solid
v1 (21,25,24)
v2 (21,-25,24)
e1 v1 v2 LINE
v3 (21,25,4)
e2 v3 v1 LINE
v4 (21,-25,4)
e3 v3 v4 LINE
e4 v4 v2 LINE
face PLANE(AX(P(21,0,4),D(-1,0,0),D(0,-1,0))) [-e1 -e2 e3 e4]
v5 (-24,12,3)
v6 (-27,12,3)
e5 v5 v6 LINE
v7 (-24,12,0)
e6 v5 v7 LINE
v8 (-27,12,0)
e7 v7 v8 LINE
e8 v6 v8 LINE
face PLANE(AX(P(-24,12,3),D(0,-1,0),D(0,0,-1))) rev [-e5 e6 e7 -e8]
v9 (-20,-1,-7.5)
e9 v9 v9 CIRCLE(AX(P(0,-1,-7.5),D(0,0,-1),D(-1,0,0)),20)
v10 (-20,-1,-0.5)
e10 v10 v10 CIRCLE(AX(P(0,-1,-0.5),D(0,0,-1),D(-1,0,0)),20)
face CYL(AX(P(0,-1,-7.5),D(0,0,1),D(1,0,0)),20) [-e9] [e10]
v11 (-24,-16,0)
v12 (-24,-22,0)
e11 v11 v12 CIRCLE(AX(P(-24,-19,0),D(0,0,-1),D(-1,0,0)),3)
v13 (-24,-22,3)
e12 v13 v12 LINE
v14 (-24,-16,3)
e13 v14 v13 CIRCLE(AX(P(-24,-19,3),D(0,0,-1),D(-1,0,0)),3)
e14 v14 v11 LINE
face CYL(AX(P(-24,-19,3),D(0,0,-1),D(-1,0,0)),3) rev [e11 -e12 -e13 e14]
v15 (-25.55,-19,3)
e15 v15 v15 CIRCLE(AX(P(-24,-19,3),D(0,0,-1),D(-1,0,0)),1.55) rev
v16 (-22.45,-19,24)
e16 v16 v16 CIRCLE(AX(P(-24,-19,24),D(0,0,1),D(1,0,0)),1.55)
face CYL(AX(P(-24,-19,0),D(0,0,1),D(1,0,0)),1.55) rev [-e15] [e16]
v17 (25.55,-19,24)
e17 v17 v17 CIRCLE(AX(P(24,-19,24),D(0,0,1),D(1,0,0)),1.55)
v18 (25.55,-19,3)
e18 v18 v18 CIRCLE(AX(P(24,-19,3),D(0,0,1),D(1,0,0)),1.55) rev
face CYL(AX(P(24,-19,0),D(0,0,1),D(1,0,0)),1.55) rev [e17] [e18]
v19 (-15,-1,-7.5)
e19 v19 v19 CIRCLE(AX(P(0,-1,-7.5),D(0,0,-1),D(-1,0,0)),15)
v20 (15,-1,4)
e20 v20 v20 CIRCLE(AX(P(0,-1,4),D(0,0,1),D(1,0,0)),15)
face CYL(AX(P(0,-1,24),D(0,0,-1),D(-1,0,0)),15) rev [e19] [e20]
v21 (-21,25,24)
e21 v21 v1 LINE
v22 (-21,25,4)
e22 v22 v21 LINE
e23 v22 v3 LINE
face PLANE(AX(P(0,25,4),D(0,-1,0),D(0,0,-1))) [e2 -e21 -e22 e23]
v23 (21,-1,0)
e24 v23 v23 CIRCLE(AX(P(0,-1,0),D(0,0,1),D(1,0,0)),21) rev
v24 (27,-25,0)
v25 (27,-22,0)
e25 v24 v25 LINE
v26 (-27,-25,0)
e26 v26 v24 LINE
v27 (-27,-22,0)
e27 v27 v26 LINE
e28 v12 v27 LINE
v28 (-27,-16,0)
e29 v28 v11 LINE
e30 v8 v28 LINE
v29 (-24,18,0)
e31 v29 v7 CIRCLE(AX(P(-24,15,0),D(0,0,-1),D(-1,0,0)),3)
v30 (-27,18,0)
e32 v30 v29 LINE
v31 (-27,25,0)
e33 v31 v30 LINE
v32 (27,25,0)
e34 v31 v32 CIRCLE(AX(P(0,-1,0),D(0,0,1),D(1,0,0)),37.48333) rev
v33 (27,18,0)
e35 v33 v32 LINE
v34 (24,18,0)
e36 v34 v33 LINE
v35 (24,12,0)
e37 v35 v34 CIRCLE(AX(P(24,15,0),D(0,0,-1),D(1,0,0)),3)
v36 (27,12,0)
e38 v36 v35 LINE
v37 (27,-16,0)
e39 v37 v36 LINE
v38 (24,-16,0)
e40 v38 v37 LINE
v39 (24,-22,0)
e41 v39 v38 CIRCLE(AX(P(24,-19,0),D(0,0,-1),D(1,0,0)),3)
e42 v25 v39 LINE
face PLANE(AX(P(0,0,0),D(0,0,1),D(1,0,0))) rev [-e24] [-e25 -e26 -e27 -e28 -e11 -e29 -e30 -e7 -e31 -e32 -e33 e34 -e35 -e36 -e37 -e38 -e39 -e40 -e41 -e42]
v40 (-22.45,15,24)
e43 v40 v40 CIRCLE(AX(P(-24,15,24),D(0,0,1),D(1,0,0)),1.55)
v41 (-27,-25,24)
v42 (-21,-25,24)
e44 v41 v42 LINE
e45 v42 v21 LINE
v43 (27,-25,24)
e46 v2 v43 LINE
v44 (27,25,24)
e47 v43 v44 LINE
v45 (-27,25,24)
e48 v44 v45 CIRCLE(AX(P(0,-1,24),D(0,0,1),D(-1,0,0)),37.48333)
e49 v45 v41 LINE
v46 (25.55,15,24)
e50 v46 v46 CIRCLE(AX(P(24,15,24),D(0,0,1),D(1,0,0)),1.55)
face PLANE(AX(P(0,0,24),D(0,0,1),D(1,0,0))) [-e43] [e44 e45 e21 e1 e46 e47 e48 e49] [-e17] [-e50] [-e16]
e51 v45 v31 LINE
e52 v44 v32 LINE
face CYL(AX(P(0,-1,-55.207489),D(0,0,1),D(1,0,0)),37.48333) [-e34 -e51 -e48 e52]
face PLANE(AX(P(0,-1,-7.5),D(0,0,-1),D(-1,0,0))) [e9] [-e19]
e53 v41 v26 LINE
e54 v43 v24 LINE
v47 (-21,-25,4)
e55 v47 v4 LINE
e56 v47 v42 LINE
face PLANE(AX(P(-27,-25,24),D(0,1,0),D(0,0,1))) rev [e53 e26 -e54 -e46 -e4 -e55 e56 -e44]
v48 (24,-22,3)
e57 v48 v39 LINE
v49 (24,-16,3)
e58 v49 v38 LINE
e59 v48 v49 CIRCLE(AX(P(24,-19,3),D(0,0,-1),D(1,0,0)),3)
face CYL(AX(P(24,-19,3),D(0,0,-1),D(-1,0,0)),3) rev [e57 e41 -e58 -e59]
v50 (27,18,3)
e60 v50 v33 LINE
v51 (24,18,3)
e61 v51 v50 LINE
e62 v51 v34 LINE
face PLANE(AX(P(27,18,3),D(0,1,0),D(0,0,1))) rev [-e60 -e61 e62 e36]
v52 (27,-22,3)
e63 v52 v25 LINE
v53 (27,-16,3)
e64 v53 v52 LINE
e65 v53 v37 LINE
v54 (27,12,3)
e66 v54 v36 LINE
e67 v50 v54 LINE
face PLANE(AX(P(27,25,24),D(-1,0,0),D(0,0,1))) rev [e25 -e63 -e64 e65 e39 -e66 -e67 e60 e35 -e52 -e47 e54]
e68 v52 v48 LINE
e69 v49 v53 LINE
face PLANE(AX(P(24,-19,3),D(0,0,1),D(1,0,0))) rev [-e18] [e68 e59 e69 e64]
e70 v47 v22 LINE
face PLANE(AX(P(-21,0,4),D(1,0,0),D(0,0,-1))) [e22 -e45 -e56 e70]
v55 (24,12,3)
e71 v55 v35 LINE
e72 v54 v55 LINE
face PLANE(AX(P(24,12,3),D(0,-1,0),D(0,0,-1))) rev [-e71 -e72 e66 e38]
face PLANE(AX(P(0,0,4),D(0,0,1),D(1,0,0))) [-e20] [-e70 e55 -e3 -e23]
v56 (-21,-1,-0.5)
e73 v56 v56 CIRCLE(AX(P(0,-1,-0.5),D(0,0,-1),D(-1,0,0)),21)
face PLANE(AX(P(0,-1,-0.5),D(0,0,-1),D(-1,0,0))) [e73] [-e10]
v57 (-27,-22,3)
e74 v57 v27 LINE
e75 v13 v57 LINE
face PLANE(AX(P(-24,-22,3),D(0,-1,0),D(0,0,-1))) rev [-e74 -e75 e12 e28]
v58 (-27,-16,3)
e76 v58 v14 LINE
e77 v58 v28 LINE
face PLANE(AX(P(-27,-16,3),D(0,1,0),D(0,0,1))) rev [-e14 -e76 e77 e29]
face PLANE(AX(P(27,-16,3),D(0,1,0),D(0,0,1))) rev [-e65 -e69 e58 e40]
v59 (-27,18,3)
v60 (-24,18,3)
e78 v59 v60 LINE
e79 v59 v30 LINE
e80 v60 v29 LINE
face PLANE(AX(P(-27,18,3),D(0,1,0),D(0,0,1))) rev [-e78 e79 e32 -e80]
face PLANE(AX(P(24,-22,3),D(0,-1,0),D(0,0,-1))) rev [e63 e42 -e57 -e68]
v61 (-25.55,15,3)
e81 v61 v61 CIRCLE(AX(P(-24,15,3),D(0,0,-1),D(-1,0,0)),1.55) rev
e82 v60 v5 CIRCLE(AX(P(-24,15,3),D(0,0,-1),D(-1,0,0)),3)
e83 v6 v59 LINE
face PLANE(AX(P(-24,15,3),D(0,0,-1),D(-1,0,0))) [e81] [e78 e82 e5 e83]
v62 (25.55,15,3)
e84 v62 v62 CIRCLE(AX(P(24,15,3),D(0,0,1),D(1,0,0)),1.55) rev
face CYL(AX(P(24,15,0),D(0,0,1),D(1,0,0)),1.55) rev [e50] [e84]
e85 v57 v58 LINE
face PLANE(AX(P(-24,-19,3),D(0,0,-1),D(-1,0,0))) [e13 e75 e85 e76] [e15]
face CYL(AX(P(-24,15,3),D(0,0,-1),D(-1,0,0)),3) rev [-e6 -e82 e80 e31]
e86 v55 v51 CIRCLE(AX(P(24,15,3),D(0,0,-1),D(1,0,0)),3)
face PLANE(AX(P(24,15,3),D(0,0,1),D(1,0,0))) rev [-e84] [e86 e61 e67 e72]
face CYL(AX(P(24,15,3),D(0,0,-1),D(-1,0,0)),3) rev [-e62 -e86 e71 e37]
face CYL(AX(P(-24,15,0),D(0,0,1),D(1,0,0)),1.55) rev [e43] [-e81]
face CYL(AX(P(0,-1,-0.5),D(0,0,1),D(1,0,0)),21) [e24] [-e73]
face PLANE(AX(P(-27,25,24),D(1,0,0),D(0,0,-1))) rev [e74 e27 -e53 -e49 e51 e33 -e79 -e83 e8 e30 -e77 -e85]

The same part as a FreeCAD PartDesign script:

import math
import FreeCAD as App
import Part
import Sketcher

V = App.Vector


def add_polygon(sketch, points):
    """Adds a closed chain of lines whose ends are joined by coincident constraints."""
    first, n = sketch.GeometryCount, len(points)
    for a, b in zip(points, points[1:] + points[:1]):
        sketch.addGeometry(Part.LineSegment(App.Vector(*a, 0), App.Vector(*b, 0)), False)
    for i in range(n):
        sketch.addConstraint(Sketcher.Constraint("Coincident", first + i, 2, first + (i + 1) % n, 1))

doc = App.newDocument("Part")
body = doc.addObject("PartDesign::Body", "Body")

sketch1 = body.newObject("Sketcher::SketchObject", "Sketch")
sketch1.AttachmentSupport = (doc.getObject("XY_Plane"), [""])
sketch1.MapMode = "FlatFace"
add_polygon(sketch1, [(-27, 25), (-27, -25), (27, -25), (27, 25)])
sketch1.addConstraint([
    Sketcher.Constraint("Vertical", 0),
    Sketcher.Constraint("Horizontal", 1),
    Sketcher.Constraint("Vertical", 2),
    Sketcher.Constraint("Horizontal", 3),
    Sketcher.Constraint("Symmetric", 0, 2, 2, 2, -1, 1),
    Sketcher.Constraint("DistanceX", 1, 1, 1, 2, 54.0),
    Sketcher.Constraint("DistanceY", 0, 2, 0, 1, 50.0),
])
pad1 = body.newObject("PartDesign::Pad", "Pad")
pad1.Profile = sketch1
pad1.Length = 24

sketch2 = body.newObject("Sketcher::SketchObject", "Sketch001")
sketch2.AttachmentSupport = (doc.getObject("XY_Plane"), [""])
sketch2.MapMode = "FlatFace"
sketch2.AttachmentOffset = App.Placement(V(0, 0, 24), App.Rotation())
sketch2.addGeometry([
    Part.Circle(V(-24, 15, 0), V(0, 0, 1), 1.6),
    Part.Circle(V(24, 15, 0), V(0, 0, 1), 1.6),
    Part.Circle(V(24, -19, 0), V(0, 0, 1), 1.6),
    Part.Circle(V(-24, -19, 0), V(0, 0, 1), 1.6),
], False)
sketch2.addConstraint([
    Sketcher.Constraint("Equal", 0, 1),
    Sketcher.Constraint("Equal", 1, 2),
    Sketcher.Constraint("Equal", 2, 3),
    Sketcher.Constraint("Symmetric", 0, 3, 1, 3, -2),
    Sketcher.Constraint("Symmetric", 2, 3, 3, 3, -2),
    Sketcher.Constraint("Vertical", 1, 3, 2, 3),
    Sketcher.Constraint("Diameter", 0, 3.1),
    Sketcher.Constraint("DistanceX", 0, 3, -1, 1, 24.0),
    Sketcher.Constraint("DistanceY", -1, 1, 0, 3, 15.0),
    Sketcher.Constraint("DistanceY", 2, 3, -1, 1, 19.0),
])
pocket1 = body.newObject("PartDesign::Pocket", "Pocket")
pocket1.Profile = sketch2
pocket1.Type = "ThroughAll"

sketch3 = body.newObject("Sketcher::SketchObject", "Sketch002")
sketch3.AttachmentSupport = (doc.getObject("XY_Plane"), [""])
sketch3.MapMode = "FlatFace"
sketch3.AttachmentOffset = App.Placement(V(0, 0, 24), App.Rotation())
sketch3.addGeometry([
    Part.LineSegment(V(-27, 25, 0), V(27, 25, 0)),
    Part.ArcOfCircle(Part.Circle(V(0, -1, 0), V(0, 0, 1), 37), math.radians(44), math.radians(136)),
], False)
sketch3.addConstraint([
    Sketcher.Constraint("Coincident", 0, 1, 1, 2),
    Sketcher.Constraint("Coincident", 1, 1, 0, 2),
    Sketcher.Constraint("Horizontal", 0),
    Sketcher.Constraint("PointOnObject", 1, 3, -2),
    Sketcher.Constraint("DistanceX", 0, 1, 0, 2, 54.0),
    Sketcher.Constraint("DistanceY", 1, 3, -1, 1, 1.0),
    Sketcher.Constraint("DistanceY", -1, 1, 0, 1, 25.0),
])
pad2 = body.newObject("PartDesign::Pad", "Pad001")
pad2.Profile = sketch3
pad2.Length = 24
pad2.Reversed = True

sketch4 = body.newObject("Sketcher::SketchObject", "Sketch003")
sketch4.AttachmentSupport = (doc.getObject("XY_Plane"), [""])
sketch4.MapMode = "FlatFace"
sketch4.AttachmentOffset = App.Placement(V(0, 0, 24), App.Rotation())
add_polygon(sketch4, [(-21, 25), (-21, -25), (21, -25), (21, 25)])
sketch4.addConstraint([
    Sketcher.Constraint("Vertical", 0),
    Sketcher.Constraint("Horizontal", 1),
    Sketcher.Constraint("Vertical", 2),
    Sketcher.Constraint("Horizontal", 3),
    Sketcher.Constraint("Symmetric", 0, 2, 2, 2, -1, 1),
    Sketcher.Constraint("DistanceX", 1, 1, 1, 2, 42.0),
    Sketcher.Constraint("DistanceY", 0, 2, 0, 1, 50.0),
])
pocket2 = body.newObject("PartDesign::Pocket", "Pocket001")
pocket2.Profile = sketch4
pocket2.Length = 20

sketch5 = body.newObject("Sketcher::SketchObject", "Sketch004")
sketch5.AttachmentSupport = (doc.getObject("XY_Plane"), [""])
sketch5.MapMode = "FlatFace"
sketch5.addGeometry([
    Part.LineSegment(V(24, -16, 0), V(27, -16, 0)),
    Part.LineSegment(V(27, -16, 0), V(27, -22, 0)),
    Part.LineSegment(V(27, -22, 0), V(24, -22, 0)),
    Part.ArcOfCircle(Part.Circle(V(24, -19, 0), V(0, 0, 1), 3), math.radians(90), math.radians(270)),
    Part.LineSegment(V(27, 18, 0), V(27, 12, 0)),
    Part.LineSegment(V(27, 12, 0), V(24, 12, 0)),
    Part.ArcOfCircle(Part.Circle(V(24, 15, 0), V(0, 0, 1), 3), math.radians(90), math.radians(270)),
    Part.LineSegment(V(24, 18, 0), V(27, 18, 0)),
    Part.LineSegment(V(-27, -16, 0), V(-24, -16, 0)),
    Part.ArcOfCircle(Part.Circle(V(-24, -19, 0), V(0, 0, 1), 3), math.radians(-90), math.radians(90)),
    Part.LineSegment(V(-24, -22, 0), V(-27, -22, 0)),
    Part.LineSegment(V(-27, -22, 0), V(-27, -16, 0)),
    Part.LineSegment(V(-27, 18, 0), V(-24, 18, 0)),
    Part.ArcOfCircle(Part.Circle(V(-24, 15, 0), V(0, 0, 1), 3), math.radians(-90), math.radians(90)),
    Part.LineSegment(V(-24, 12, 0), V(-27, 12, 0)),
    Part.LineSegment(V(-27, 12, 0), V(-27, 18, 0)),
], False)
sketch5.addConstraint([
    Sketcher.Constraint("Coincident", 0, 2, 1, 1),
    Sketcher.Constraint("Coincident", 1, 2, 2, 1),
    Sketcher.Constraint("Tangent", 2, 2, 3, 2),
    Sketcher.Constraint("Tangent", 3, 1, 0, 1),
    Sketcher.Constraint("Coincident", 4, 2, 5, 1),
    Sketcher.Constraint("Tangent", 5, 2, 6, 2),
    Sketcher.Constraint("Tangent", 6, 1, 7, 1),
    Sketcher.Constraint("Coincident", 7, 2, 4, 1),
    Sketcher.Constraint("Tangent", 8, 2, 9, 2),
    Sketcher.Constraint("Tangent", 9, 1, 10, 1),
    Sketcher.Constraint("Coincident", 10, 2, 11, 1),
    Sketcher.Constraint("Coincident", 11, 2, 8, 1),
    Sketcher.Constraint("Tangent", 12, 2, 13, 2),
    Sketcher.Constraint("Tangent", 13, 1, 14, 1),
    Sketcher.Constraint("Coincident", 14, 2, 15, 1),
    Sketcher.Constraint("Coincident", 15, 2, 12, 1),
    Sketcher.Constraint("Horizontal", 0),
    Sketcher.Constraint("Vertical", 1),
    Sketcher.Constraint("Horizontal", 2),
    Sketcher.Constraint("Vertical", 4),
    Sketcher.Constraint("Horizontal", 5),
    Sketcher.Constraint("Horizontal", 7),
    Sketcher.Constraint("Horizontal", 8),
    Sketcher.Constraint("Horizontal", 10),
    Sketcher.Constraint("Vertical", 11),
    Sketcher.Constraint("Horizontal", 12),
    Sketcher.Constraint("Horizontal", 14),
    Sketcher.Constraint("Vertical", 15),
    Sketcher.Constraint("Equal", 3, 6),
    Sketcher.Constraint("Equal", 6, 9),
    Sketcher.Constraint("Equal", 9, 13),
    Sketcher.Constraint("Symmetric", 3, 3, 9, 3, -2),
    Sketcher.Constraint("Symmetric", 6, 3, 13, 3, -2),
    Sketcher.Constraint("Vertical", 3, 3, 6, 3),
    Sketcher.Constraint("Vertical", 1, 2, 4, 2),
    Sketcher.Constraint("Vertical", 11, 2, 14, 2),
    Sketcher.Constraint("Equal", 7, 8),
    Sketcher.Constraint("Radius", 3, 3.0),
    Sketcher.Constraint("DistanceX", 0, 1, 0, 2, 3.0),
    Sketcher.Constraint("DistanceX", -1, 1, 3, 3, 24.0),
    Sketcher.Constraint("DistanceY", 3, 3, -1, 1, 19.0),
    Sketcher.Constraint("DistanceY", -1, 1, 6, 3, 15.0),
])
pocket3 = body.newObject("PartDesign::Pocket", "Pocket002")
pocket3.Profile = sketch5
pocket3.Length = 3
pocket3.Reversed = True

sketch6 = body.newObject("Sketcher::SketchObject", "Sketch005")
sketch6.AttachmentSupport = (doc.getObject("XY_Plane"), [""])
sketch6.MapMode = "FlatFace"
sketch6.addGeometry(Part.Circle(V(0, -1, 0), V(0, 0, 1), 15), False)
sketch6.addConstraint([
    Sketcher.Constraint("PointOnObject", 0, 3, -2),
    Sketcher.Constraint("Diameter", 0, 30.0),
    Sketcher.Constraint("DistanceY", 0, 3, -1, 1, 1.0),
])
pocket4 = body.newObject("PartDesign::Pocket", "Pocket003")
pocket4.Profile = sketch6
pocket4.Type = "ThroughAll"
pocket4.Reversed = True

sketch7 = body.newObject("Sketcher::SketchObject", "Sketch006")
sketch7.AttachmentSupport = (doc.getObject("XY_Plane"), [""])
sketch7.MapMode = "FlatFace"
sketch7.addGeometry([
    Part.Circle(V(0, -1, 0), V(0, 0, 1), 20),
    Part.Circle(V(0, -1, 0), V(0, 0, 1), 15),
], False)
sketch7.addConstraint([
    Sketcher.Constraint("Coincident", 1, 3, 0, 3),
    Sketcher.Constraint("PointOnObject", 0, 3, -2),
    Sketcher.Constraint("Diameter", 0, 40.0),
    Sketcher.Constraint("Diameter", 1, 30.0),
    Sketcher.Constraint("DistanceY", 0, 3, -1, 1, 1.0),
])
pad3 = body.newObject("PartDesign::Pad", "Pad002")
pad3.Profile = sketch7
pad3.Length = 7.5
pad3.Reversed = True

sketch8 = body.newObject("Sketcher::SketchObject", "Sketch007")
sketch8.AttachmentSupport = (doc.getObject("XY_Plane"), [""])
sketch8.MapMode = "FlatFace"
sketch8.addGeometry([
    Part.Circle(V(0, -1, 0), V(0, 0, 1), 21),
    Part.Circle(V(0, -1, 0), V(0, 0, 1), 20),
], False)
sketch8.addConstraint([
    Sketcher.Constraint("Coincident", 1, 3, 0, 3),
    Sketcher.Constraint("PointOnObject", 0, 3, -2),
    Sketcher.Constraint("Diameter", 0, 42.0),
    Sketcher.Constraint("Diameter", 1, 40.0),
    Sketcher.Constraint("DistanceY", 0, 3, -1, 1, 1.0),
])
pad4 = body.newObject("PartDesign::Pad", "Pad003")
pad4.Profile = sketch8
pad4.Length = 0.5
pad4.Reversed = True

doc.recompute()
